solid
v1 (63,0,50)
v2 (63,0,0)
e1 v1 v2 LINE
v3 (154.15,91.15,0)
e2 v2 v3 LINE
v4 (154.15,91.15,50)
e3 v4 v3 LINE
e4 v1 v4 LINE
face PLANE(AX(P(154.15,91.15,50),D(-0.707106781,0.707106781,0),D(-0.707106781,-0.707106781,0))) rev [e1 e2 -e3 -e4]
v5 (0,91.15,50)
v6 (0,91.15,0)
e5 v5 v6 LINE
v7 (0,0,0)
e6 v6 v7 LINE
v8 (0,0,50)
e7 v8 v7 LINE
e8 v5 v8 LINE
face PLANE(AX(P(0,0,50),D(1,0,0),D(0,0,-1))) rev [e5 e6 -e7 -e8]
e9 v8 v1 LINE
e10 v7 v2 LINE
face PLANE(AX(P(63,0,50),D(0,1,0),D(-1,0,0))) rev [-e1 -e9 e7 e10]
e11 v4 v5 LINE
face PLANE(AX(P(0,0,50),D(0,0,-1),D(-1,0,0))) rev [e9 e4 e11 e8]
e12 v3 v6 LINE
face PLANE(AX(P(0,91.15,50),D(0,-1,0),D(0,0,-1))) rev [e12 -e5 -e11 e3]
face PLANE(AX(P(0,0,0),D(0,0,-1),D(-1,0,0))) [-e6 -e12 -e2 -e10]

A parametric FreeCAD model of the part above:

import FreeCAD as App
import Part
import Sketcher

V = App.Vector
Q = App.Units.Quantity

doc = App.newDocument("Part")
body = doc.addObject("PartDesign::Body", "Body")

# Sketch on XY plane
sketch1 = body.newObject("Sketcher::SketchObject", "Sketch")
sketch1.AttachmentSupport = (doc.getObject("XY_Plane"), [""])
sketch1.MapMode = "FlatFace"
sketch1.addGeometry(Part.LineSegment(V(154, 91, 0), V(0, 91, 0)), False)
sketch1.addGeometry(Part.LineSegment(V(0, 91, 0), V(0, 0, 0)), False)
sketch1.addGeometry(Part.LineSegment(V(0, 0, 0), V(63, 0, 0)), False)
sketch1.addGeometry(Part.LineSegment(V(63, 0, 0), V(154, 91, 0)), False)
sketch1.addConstraint(Sketcher.Constraint("Coincident", 0, 2, 1, 1))
sketch1.addConstraint(Sketcher.Constraint("Coincident", 1, 2, 2, 1))
sketch1.addConstraint(Sketcher.Constraint("Coincident", 2, 2, 3, 1))
sketch1.addConstraint(Sketcher.Constraint("Coincident", 3, 2, 0, 1))
sketch1.addConstraint(Sketcher.Constraint("Horizontal", 0))
sketch1.addConstraint(Sketcher.Constraint("Vertical", 1))
sketch1.addConstraint(Sketcher.Constraint("Horizontal", 2))
sketch1.addConstraint(Sketcher.Constraint("Coincident", 1, 2, -1, 1))
sketch1.addConstraint(Sketcher.Constraint("DistanceX", 2, 1, 2, 2, 63.0))
sketch1.addConstraint(Sketcher.Constraint("Angle", 3, Q("45 deg")))
sketch1.addConstraint(Sketcher.Constraint("DistanceX", 0, 2, 0, 1, 154.15))
pad1 = body.newObject("PartDesign::Pad", "Pad")
pad1.Profile = sketch1
pad1.Length = 50

doc.recompute()
